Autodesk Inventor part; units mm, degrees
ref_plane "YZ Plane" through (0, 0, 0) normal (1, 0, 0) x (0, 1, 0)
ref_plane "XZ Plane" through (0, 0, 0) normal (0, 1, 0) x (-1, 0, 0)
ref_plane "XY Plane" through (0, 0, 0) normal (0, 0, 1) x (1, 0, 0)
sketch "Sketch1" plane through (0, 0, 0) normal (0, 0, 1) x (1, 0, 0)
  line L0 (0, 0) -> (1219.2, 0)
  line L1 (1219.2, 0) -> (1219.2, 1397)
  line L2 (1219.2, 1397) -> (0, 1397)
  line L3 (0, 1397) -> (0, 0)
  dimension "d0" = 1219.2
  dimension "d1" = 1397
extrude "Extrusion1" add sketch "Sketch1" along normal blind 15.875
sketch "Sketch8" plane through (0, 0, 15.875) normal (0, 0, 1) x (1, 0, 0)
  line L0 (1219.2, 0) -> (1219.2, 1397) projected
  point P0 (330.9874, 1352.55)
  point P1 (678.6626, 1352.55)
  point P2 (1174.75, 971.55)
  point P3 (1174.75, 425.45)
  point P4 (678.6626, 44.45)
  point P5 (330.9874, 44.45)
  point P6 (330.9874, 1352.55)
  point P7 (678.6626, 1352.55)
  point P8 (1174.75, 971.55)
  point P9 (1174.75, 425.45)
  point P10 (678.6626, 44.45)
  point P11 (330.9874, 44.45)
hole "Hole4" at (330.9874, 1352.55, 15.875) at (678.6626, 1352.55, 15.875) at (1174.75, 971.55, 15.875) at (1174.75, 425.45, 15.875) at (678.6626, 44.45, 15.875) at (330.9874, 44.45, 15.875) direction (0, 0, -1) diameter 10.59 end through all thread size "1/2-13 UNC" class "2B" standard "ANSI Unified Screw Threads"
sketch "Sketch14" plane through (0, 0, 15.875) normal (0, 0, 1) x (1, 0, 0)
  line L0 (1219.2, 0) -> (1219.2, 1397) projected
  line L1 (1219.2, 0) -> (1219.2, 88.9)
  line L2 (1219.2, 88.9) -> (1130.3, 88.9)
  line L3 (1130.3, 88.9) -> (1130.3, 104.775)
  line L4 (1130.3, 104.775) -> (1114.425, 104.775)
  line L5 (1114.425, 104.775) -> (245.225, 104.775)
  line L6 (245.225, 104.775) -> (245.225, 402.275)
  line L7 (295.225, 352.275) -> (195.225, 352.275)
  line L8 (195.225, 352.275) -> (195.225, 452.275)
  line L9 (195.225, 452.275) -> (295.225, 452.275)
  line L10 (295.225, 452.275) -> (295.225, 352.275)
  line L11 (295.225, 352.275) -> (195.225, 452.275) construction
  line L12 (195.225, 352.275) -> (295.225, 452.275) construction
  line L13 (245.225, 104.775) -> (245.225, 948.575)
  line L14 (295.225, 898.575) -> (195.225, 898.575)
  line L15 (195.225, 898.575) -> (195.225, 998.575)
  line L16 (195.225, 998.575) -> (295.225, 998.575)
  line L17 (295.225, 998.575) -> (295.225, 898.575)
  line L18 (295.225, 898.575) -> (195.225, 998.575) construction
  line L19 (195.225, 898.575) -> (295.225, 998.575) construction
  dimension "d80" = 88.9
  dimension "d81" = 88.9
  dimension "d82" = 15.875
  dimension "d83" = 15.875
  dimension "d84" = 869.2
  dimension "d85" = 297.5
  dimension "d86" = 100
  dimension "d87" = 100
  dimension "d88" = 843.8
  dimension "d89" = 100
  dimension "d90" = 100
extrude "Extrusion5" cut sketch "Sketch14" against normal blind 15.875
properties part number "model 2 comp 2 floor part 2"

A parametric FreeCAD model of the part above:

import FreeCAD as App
import Part
import Sketcher

V = App.Vector
Q = App.Units.Quantity

doc = App.newDocument("Part")
body = doc.addObject("PartDesign::Body", "Body")

# Sketch on XY plane
sketch1 = doc.addObject("Sketcher::SketchObject", "Sketch")
body.addObject(sketch1)
sketch1.AttachmentSupport = (doc.XY_Plane, [""])
sketch1.MapMode = "FlatFace"
sketch1.addGeometry([
    Part.LineSegment(V(0, 1397, 0), V(0, 0, 0)),
    Part.LineSegment(V(0, 0, 0), V(1219, 0, 0)),
    Part.LineSegment(V(1219, 0, 0), V(1219, 1397, 0)),
    Part.LineSegment(V(1219, 1397, 0), V(0, 1397, 0)),
], False)
sketch1.addConstraint([
    Sketcher.Constraint("Coincident", 0, 2, 1, 1),
    Sketcher.Constraint("Coincident", 1, 2, 2, 1),
    Sketcher.Constraint("Coincident", 2, 2, 3, 1),
    Sketcher.Constraint("Coincident", 3, 2, 0, 1),
    Sketcher.Constraint("Vertical", 0),
    Sketcher.Constraint("Horizontal", 1),
    Sketcher.Constraint("Vertical", 2),
    Sketcher.Constraint("Horizontal", 3),
    Sketcher.Constraint("Coincident", 0, 2, -1, 1),
    Sketcher.Constraint("DistanceX", 1, 1, 1, 2, Q("48 in")),
    Sketcher.Constraint("DistanceY", 0, 2, 0, 1, Q("55 in")),
])
pad1 = doc.addObject("PartDesign::Pad", "Pad")
body.addObject(pad1)
pad1.Profile = sketch1
pad1.Length = Q("0.625 in")

# Sketch on XY plane
sketch2 = doc.addObject("Sketcher::SketchObject", "Sketch001")
body.addObject(sketch2)
sketch2.AttachmentSupport = (doc.XY_Plane, [""])
sketch2.MapMode = "FlatFace"
sketch2.AttachmentOffset = App.Placement(V(0, 0, 0.625 * 25.4), App.Rotation())
sketch2.addGeometry([
    Part.Circle(V(331, 1353, 0), V(0, 0, 1), 5),  # 0
    Part.Circle(V(679, 1353, 0), V(0, 0, 1), 5),  # 1
    Part.Circle(V(1175, 972, 0), V(0, 0, 1), 5),  # 2
    Part.Circle(V(1175, 425, 0), V(0, 0, 1), 5),  # 3
    Part.Circle(V(679, 44, 0), V(0, 0, 1), 5),  # 4
    Part.Circle(V(331, 44, 0), V(0, 0, 1), 5),  # 5
], False)
sketch2.addConstraint([
    Sketcher.Constraint("Equal", 0, 1),
    Sketcher.Constraint("Equal", 1, 2),
    Sketcher.Constraint("Equal", 2, 3),
    Sketcher.Constraint("Equal", 3, 4),
    Sketcher.Constraint("Equal", 4, 5),
    Sketcher.Constraint("Horizontal", 0, 3, 1, 3),
    Sketcher.Constraint("Horizontal", 4, 3, 5, 3),
    Sketcher.Constraint("Vertical", 2, 3, 3, 3),
    Sketcher.Constraint("Vertical", 1, 3, 4, 3),
    Sketcher.Constraint("Vertical", 0, 3, 5, 3),
    Sketcher.Constraint("DistanceY", 2, 3, 1, 3, Q("15 in")),
    Sketcher.Constraint("DistanceY", 4, 3, 3, 3, Q("15 in")),
    Sketcher.Constraint("DistanceY", 3, 3, 2, 3, Q("21.5 in")),
    Sketcher.Constraint("Diameter", 0, Q("10.59 mm")),
    Sketcher.Constraint("DistanceY", -1, 1, 0, 3, Q("53.25 in")),
    Sketcher.Constraint("DistanceX", -1, 1, 2, 3, Q("46.25 in")),
    Sketcher.Constraint("DistanceX", -1, 1, 0, 3, Q("13.031 in")),
    Sketcher.Constraint("DistanceX", -1, 1, 1, 3, Q("26.719 in")),
])
doc.recompute()
hole = doc.addObject("PartDesign::Hole", "Hole")
body.addObject(hole)
hole.Profile = sketch2
hole.ThreadType = "None"
hole.Diameter = 10.59
hole.DepthType = "ThroughAll"

# Sketch on XY plane
sketch3 = doc.addObject("Sketcher::SketchObject", "Sketch002")
body.addObject(sketch3)
sketch3.AttachmentSupport = (doc.XY_Plane, [""])
sketch3.MapMode = "FlatFace"
sketch3.AttachmentOffset = App.Placement(V(0, 0, 0.625 * 25.4), App.Rotation())
sketch3.addGeometry([
    Part.LineSegment(V(195, 352, 0), V(295, 352, 0)),  # 0
    Part.LineSegment(V(295, 352, 0), V(295, 452, 0)),  # 1
    Part.LineSegment(V(295, 452, 0), V(195, 452, 0)),  # 2
    Part.LineSegment(V(195, 452, 0), V(195, 352, 0)),  # 3
    Part.LineSegment(V(195, 899, 0), V(295, 899, 0)),  # 4
    Part.LineSegment(V(295, 899, 0), V(295, 999, 0)),  # 5
    Part.LineSegment(V(295, 999, 0), V(195, 999, 0)),  # 6
    Part.LineSegment(V(195, 999, 0), V(195, 899, 0)),  # 7
], False)
sketch3.addConstraint([
    Sketcher.Constraint("Coincident", 0, 2, 1, 1),
    Sketcher.Constraint("Coincident", 1, 2, 2, 1),
    Sketcher.Constraint("Coincident", 2, 2, 3, 1),
    Sketcher.Constraint("Coincident", 3, 2, 0, 1),
    Sketcher.Constraint("Coincident", 4, 2, 5, 1),
    Sketcher.Constraint("Coincident", 5, 2, 6, 1),
    Sketcher.Constraint("Coincident", 6, 2, 7, 1),
    Sketcher.Constraint("Coincident", 7, 2, 4, 1),
    Sketcher.Constraint("Horizontal", 0),
    Sketcher.Constraint("Vertical", 1),
    Sketcher.Constraint("Horizontal", 2),
    Sketcher.Constraint("Vertical", 3),
    Sketcher.Constraint("Horizontal", 4),
    Sketcher.Constraint("Vertical", 5),
    Sketcher.Constraint("Horizontal", 6),
    Sketcher.Constraint("Vertical", 7),
    Sketcher.Constraint("Vertical", 1, 2, 4, 2),
    Sketcher.Constraint("Vertical", 3, 2, 6, 2),
    Sketcher.Constraint("Equal", 6, 1),
    Sketcher.Constraint("Equal", 3, 5),
    Sketcher.Constraint("DistanceX", 0, 1, 0, 2, Q("3.937 in")),
    Sketcher.Constraint("DistanceY", -1, 1, 0, 2, Q("13.8691 in")),
    Sketcher.Constraint("DistanceX", -1, 1, 0, 2, Q("295.225 mm")),
    Sketcher.Constraint("DistanceY", -1, 1, 4, 2, Q("898.575 mm")),
])
pocket1 = doc.addObject("PartDesign::Pocket", "Pocket")
body.addObject(pocket1)
pocket1.Profile = sketch3
pocket1.Length = Q("0.625 in")

doc.recompute()
